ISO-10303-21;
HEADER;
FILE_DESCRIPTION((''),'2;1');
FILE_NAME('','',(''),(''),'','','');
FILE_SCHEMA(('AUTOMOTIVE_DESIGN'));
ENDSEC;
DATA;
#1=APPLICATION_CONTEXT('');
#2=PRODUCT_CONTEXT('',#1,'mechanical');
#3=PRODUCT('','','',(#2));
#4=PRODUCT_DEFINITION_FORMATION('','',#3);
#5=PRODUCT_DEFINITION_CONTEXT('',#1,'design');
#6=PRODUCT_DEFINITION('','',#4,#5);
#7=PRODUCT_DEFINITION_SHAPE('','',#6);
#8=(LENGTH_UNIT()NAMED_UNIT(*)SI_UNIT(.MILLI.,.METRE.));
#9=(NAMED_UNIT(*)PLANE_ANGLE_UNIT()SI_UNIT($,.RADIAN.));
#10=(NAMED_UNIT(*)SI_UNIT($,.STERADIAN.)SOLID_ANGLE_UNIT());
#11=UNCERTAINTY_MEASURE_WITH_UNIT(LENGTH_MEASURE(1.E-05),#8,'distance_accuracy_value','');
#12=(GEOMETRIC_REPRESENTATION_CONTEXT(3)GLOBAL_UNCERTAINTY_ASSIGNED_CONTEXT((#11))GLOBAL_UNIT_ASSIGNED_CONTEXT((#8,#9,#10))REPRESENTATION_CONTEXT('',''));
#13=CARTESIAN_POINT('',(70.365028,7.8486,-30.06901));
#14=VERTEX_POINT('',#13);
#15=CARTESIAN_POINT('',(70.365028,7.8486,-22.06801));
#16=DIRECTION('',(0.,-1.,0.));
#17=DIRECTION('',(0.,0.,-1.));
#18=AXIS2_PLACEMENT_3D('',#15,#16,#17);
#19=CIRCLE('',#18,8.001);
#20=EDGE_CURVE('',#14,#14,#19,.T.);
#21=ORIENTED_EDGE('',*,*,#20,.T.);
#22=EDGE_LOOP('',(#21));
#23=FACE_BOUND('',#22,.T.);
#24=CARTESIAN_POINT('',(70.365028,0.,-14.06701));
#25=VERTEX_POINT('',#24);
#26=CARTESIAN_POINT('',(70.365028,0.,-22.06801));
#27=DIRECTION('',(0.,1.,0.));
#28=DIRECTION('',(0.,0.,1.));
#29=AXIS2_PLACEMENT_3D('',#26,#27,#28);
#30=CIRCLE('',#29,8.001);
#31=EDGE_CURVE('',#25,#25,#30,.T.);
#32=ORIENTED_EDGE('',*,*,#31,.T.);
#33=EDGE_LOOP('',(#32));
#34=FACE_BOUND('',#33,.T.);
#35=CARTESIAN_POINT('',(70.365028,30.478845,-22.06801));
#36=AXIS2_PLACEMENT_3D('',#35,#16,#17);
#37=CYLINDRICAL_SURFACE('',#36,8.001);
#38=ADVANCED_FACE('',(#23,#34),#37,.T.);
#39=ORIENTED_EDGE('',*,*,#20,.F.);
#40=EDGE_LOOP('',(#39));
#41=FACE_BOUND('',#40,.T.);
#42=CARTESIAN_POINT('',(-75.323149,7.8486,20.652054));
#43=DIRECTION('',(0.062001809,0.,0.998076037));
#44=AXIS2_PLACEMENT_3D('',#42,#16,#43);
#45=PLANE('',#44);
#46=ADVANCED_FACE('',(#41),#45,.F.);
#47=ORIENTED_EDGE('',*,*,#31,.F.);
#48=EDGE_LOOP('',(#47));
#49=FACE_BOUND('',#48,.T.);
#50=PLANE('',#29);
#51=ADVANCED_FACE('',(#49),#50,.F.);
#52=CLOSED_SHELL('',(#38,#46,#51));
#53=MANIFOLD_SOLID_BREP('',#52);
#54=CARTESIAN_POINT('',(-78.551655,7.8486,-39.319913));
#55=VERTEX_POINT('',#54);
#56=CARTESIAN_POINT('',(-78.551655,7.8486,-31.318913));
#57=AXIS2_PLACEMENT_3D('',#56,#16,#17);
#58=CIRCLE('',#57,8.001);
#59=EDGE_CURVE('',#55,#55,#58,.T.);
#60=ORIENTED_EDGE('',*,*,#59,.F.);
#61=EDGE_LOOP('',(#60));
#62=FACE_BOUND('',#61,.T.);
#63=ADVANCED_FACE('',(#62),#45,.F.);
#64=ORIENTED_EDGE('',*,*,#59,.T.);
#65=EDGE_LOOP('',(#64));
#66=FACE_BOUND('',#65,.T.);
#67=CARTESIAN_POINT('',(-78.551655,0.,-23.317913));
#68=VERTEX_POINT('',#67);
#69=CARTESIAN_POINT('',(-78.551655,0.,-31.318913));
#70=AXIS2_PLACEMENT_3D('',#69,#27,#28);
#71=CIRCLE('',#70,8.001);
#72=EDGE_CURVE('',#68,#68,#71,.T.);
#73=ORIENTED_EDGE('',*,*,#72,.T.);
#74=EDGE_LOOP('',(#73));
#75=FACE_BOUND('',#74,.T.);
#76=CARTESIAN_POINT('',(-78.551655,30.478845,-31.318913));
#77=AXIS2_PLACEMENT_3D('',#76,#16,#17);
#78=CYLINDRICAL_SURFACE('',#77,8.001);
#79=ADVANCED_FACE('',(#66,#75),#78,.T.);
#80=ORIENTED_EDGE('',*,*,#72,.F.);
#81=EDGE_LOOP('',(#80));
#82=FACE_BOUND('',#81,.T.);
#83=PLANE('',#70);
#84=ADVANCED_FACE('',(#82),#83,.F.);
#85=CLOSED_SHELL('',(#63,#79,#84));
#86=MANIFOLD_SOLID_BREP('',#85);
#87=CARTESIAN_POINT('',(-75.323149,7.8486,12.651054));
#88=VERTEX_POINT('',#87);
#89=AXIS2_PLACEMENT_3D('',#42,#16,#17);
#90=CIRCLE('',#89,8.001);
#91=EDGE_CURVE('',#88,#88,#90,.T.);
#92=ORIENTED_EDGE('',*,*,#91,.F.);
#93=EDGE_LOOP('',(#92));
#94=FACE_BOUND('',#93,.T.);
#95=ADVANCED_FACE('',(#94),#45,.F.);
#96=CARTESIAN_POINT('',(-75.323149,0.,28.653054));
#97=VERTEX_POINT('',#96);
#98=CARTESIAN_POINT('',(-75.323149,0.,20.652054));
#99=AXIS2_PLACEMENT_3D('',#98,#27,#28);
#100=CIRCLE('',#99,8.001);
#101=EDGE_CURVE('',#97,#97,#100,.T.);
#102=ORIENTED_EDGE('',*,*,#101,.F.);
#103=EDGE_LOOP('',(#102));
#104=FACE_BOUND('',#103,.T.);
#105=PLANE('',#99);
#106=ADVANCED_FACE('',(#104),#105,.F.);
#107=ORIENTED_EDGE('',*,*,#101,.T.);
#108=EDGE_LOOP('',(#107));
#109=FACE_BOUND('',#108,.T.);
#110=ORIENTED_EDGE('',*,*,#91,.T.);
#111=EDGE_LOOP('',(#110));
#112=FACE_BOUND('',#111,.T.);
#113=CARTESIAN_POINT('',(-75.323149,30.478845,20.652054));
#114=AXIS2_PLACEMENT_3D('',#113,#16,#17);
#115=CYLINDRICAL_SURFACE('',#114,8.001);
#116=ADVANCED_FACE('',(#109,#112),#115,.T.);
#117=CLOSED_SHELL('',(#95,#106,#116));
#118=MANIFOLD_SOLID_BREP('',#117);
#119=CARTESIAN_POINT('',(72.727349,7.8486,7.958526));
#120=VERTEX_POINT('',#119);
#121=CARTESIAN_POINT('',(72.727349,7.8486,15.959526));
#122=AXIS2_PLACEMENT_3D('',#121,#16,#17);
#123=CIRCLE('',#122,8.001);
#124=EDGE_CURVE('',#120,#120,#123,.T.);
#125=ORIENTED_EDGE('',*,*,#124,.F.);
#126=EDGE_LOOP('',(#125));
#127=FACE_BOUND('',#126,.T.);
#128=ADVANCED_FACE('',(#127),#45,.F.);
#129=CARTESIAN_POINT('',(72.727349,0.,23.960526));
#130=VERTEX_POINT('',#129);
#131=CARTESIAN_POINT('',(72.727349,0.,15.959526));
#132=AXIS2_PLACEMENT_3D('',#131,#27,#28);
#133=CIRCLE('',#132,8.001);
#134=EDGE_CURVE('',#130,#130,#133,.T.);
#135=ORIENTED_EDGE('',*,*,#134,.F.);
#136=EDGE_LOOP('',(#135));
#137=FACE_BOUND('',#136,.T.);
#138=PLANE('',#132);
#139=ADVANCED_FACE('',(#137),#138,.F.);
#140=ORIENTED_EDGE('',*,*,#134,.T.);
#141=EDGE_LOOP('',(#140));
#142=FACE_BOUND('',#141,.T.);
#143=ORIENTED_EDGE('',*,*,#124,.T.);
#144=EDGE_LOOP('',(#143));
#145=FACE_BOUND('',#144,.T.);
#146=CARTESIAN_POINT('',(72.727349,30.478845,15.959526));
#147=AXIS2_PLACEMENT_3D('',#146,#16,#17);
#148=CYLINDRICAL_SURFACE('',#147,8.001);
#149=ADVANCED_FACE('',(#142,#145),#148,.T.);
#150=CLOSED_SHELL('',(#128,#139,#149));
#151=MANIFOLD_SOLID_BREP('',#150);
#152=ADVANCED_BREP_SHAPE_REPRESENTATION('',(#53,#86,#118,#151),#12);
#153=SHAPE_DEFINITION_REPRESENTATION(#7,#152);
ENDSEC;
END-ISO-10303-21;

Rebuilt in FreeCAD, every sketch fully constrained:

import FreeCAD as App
import Part
import Sketcher
Q = App.Units.Quantity

doc = App.newDocument("Part")
body = doc.addObject("PartDesign::Body", "Body")

# Sketch on XZ plane
sketch1 = body.newObject("Sketcher::SketchObject", "Sketch")
sketch1.AttachmentSupport = (doc.getObject("XZ_Plane"), [""])
sketch1.MapMode = "FlatFace"
sketch1.addGeometry(Part.Circle(App.Vector(70, -22, 0), App.Vector(0, 0, 1), 8), False)
sketch1.addConstraint(Sketcher.Constraint("Diameter", 0, Q("0.63 in")))
sketch1.addConstraint(Sketcher.Constraint("DistanceX", -1, 1, 0, 3, Q("70.365028 mm")))
sketch1.addConstraint(Sketcher.Constraint("DistanceY", 0, 3, -1, 1, Q("22.06801 mm")))
pad1 = body.newObject("PartDesign::Pad", "Pad")
pad1.Profile = sketch1
pad1.Length = Q("0.309 in")
pad1.Reversed = True
body2 = doc.addObject("PartDesign::Body", "Body001")

# Sketch on XZ plane
sketch2 = body2.newObject("Sketcher::SketchObject", "Sketch001")
sketch2.AttachmentSupport = (doc.getObject("XZ_Plane001"), [""])
sketch2.MapMode = "FlatFace"
sketch2.addGeometry(Part.Circle(App.Vector(73, 16, 0), App.Vector(0, 0, 1), 8), False)
sketch2.addConstraint(Sketcher.Constraint("Diameter", 0, Q("0.63 in")))
sketch2.addConstraint(Sketcher.Constraint("DistanceX", -1, 1, 0, 3, Q("72.727349 mm")))
sketch2.addConstraint(Sketcher.Constraint("DistanceY", -1, 1, 0, 3, Q("15.959526 mm")))
pad2 = body2.newObject("PartDesign::Pad", "Pad001")
pad2.Profile = sketch2
pad2.Length = Q("0.309 in")
pad2.Reversed = True
body3 = doc.addObject("PartDesign::Body", "Body002")

# Sketch on XZ plane
sketch3 = body3.newObject("Sketcher::SketchObject", "Sketch002")
sketch3.AttachmentSupport = (doc.getObject("XZ_Plane002"), [""])
sketch3.MapMode = "FlatFace"
sketch3.addGeometry(Part.Circle(App.Vector(-79, -31, 0), App.Vector(0, 0, 1), 8), False)
sketch3.addConstraint(Sketcher.Constraint("Diameter", 0, Q("0.63 in")))
sketch3.addConstraint(Sketcher.Constraint("DistanceX", 0, 3, -1, 1, Q("78.551655 mm")))
sketch3.addConstraint(Sketcher.Constraint("DistanceY", 0, 3, -1, 1, Q("31.318913 mm")))
pad3 = body3.newObject("PartDesign::Pad", "Pad002")
pad3.Profile = sketch3
pad3.Length = Q("0.309 in")
pad3.Reversed = True
body4 = doc.addObject("PartDesign::Body", "Body003")

# Sketch on XZ plane
sketch4 = body4.newObject("Sketcher::SketchObject", "Sketch003")
sketch4.AttachmentSupport = (doc.getObject("XZ_Plane003"), [""])
sketch4.MapMode = "FlatFace"
sketch4.addGeometry(Part.Circle(App.Vector(-75, 21, 0), App.Vector(0, 0, 1), 8), False)
sketch4.addConstraint(Sketcher.Constraint("Diameter", 0, Q("0.63 in")))
sketch4.addConstraint(Sketcher.Constraint("DistanceX", 0, 3, -1, 1, Q("75.323149 mm")))
sketch4.addConstraint(Sketcher.Constraint("DistanceY", -1, 1, 0, 3, Q("20.652054 mm")))
pad4 = body4.newObject("PartDesign::Pad", "Pad003")
pad4.Profile = sketch4
pad4.Length = Q("0.309 in")
pad4.Reversed = True

doc.recompute()
